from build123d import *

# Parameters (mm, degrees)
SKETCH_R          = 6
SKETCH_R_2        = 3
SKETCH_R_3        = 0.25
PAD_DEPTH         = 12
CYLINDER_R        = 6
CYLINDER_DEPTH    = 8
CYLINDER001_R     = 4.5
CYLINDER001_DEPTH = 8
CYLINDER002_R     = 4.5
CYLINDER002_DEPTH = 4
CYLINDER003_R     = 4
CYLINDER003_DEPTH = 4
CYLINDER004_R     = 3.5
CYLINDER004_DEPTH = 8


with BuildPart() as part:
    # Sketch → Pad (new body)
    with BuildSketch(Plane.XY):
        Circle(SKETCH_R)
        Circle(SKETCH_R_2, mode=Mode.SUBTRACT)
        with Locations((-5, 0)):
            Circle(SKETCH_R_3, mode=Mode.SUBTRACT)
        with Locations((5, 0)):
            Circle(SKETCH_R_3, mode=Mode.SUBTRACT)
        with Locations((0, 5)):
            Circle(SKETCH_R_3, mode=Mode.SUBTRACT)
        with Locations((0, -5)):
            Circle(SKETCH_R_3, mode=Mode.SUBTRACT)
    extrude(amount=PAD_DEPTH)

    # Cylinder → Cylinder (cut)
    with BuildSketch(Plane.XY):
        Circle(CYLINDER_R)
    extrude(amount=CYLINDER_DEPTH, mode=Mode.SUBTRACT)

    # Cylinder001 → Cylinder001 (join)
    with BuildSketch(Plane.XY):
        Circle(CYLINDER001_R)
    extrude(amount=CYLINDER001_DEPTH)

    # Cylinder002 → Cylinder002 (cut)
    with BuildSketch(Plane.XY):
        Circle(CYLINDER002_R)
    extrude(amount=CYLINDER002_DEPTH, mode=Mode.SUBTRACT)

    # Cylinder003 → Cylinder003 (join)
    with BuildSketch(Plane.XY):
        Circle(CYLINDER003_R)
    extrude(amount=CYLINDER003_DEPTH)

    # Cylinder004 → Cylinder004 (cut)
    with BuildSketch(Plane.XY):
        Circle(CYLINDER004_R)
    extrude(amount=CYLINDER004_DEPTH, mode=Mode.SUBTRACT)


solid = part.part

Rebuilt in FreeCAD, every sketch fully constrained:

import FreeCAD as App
import Part
import Sketcher
Q = App.Units.Quantity

doc = App.newDocument("Part")
params = doc.addObject("Spreadsheet::Sheet", "Params")
for row, (alias, value) in enumerate([
    ("sketch1_diameter", "12 mm"),
    ("sketch1_diameter2", "6 mm"),
    ("sketch1_diameter3", "0.5 mm"),
    ("pad1_length", "12 mm"),
    ("sketch2_diameter", "12 mm"),
    ("pocket1_length", "8 mm"),
    ("sketch3_diameter", "9 mm"),
    ("pad2_length", "8 mm"),
    ("sketch4_diameter", "9 mm"),
    ("pocket2_length", "4 mm"),
    ("sketch5_diameter", "8 mm"),
    ("pad3_length", "4 mm"),
    ("sketch6_diameter", "7 mm"),
    ("pocket3_length", "8 mm"),
], start=1):
    params.set(f"A{row}", alias)
    params.set(f"B{row}", "=" + value)
    params.setAlias(f"B{row}", alias)

body = doc.addObject("PartDesign::Body", "Body")

sketch1 = body.newObject("Sketcher::SketchObject", "Sketch")
sketch1.AttachmentSupport = (doc.getObject("XY_Plane"), [""])
sketch1.MapMode = "FlatFace"
sketch1.addGeometry(Part.Circle(App.Vector(0, 0, 0), App.Vector(0, 0, 1), 6), False)
sketch1.addGeometry(Part.Circle(App.Vector(0, -5, 0), App.Vector(0, 0, 1), 0.25), False)
sketch1.addGeometry(Part.Circle(App.Vector(-5, 0, 0), App.Vector(0, 0, 1), 0.25), False)
sketch1.addGeometry(Part.Circle(App.Vector(0, 0, 0), App.Vector(0, 0, 1), 3), False)
sketch1.addGeometry(Part.Circle(App.Vector(5, 0, 0), App.Vector(0, 0, 1), 0.25), False)
sketch1.addGeometry(Part.Circle(App.Vector(0, 5, 0), App.Vector(0, 0, 1), 0.25), False)
sketch1.addConstraint(Sketcher.Constraint("Coincident", 0, 3, -1, 1))
sketch1.addConstraint(Sketcher.Constraint("Coincident", 3, 3, -1, 1))
sketch1.addConstraint(Sketcher.Constraint("Equal", 1, 2))
sketch1.addConstraint(Sketcher.Constraint("Equal", 2, 4))
sketch1.addConstraint(Sketcher.Constraint("Equal", 4, 5))
sketch1.addConstraint(Sketcher.Constraint("Symmetric", 2, 3, 4, 3, -1, 1))
sketch1.addConstraint(Sketcher.Constraint("Symmetric", 1, 3, 5, 3, -1, 1))
sketch1.addConstraint(Sketcher.Constraint("PointOnObject", 1, 3, -2))
sketch1.addConstraint(Sketcher.Constraint("PointOnObject", 2, 3, -1))
sketch1.addConstraint(Sketcher.Constraint("Diameter", 0, Q("12 mm")))
sketch1.addConstraint(Sketcher.Constraint("Diameter", 3, Q("6 mm")))
sketch1.addConstraint(Sketcher.Constraint("Diameter", 1, Q("0.5 mm")))
sketch1.addConstraint(Sketcher.Constraint("DistanceY", 1, 3, -1, 1, Q("5 mm")))
sketch1.addConstraint(Sketcher.Constraint("DistanceX", 2, 3, -1, 1, Q("5 mm")))
sketch1.setExpression("Constraints[9]", "Params.sketch1_diameter")
sketch1.setExpression("Constraints[10]", "Params.sketch1_diameter2")
sketch1.setExpression("Constraints[11]", "Params.sketch1_diameter3")
pad1 = body.newObject("PartDesign::Pad", "Pad")
pad1.Profile = sketch1
pad1.setExpression("Length", "Params.pad1_length")

sketch2 = body.newObject("Sketcher::SketchObject", "Sketch001")
sketch2.AttachmentSupport = (doc.getObject("XY_Plane"), [""])
sketch2.MapMode = "FlatFace"
sketch2.addGeometry(Part.Circle(App.Vector(0, 0, 0), App.Vector(0, 0, 1), 6), False)
sketch2.addConstraint(Sketcher.Constraint("Coincident", 0, 3, -1, 1))
sketch2.addConstraint(Sketcher.Constraint("Diameter", 0, Q("12 mm")))
sketch2.setExpression("Constraints[1]", "Params.sketch2_diameter")
pocket1 = body.newObject("PartDesign::Pocket", "Pocket")
pocket1.Profile = sketch2
pocket1.setExpression("Length", "Params.pocket1_length")
pocket1.Reversed = True

sketch3 = body.newObject("Sketcher::SketchObject", "Sketch002")
sketch3.AttachmentSupport = (doc.getObject("XY_Plane"), [""])
sketch3.MapMode = "FlatFace"
sketch3.addGeometry(Part.Circle(App.Vector(0, 0, 0), App.Vector(0, 0, 1), 4.5), False)
sketch3.addConstraint(Sketcher.Constraint("Coincident", 0, 3, -1, 1))
sketch3.addConstraint(Sketcher.Constraint("Diameter", 0, Q("9 mm")))
sketch3.setExpression("Constraints[1]", "Params.sketch3_diameter")
pad2 = body.newObject("PartDesign::Pad", "Pad001")
pad2.Profile = sketch3
pad2.setExpression("Length", "Params.pad2_length")

sketch4 = body.newObject("Sketcher::SketchObject", "Sketch003")
sketch4.AttachmentSupport = (doc.getObject("XY_Plane"), [""])
sketch4.MapMode = "FlatFace"
sketch4.addGeometry(Part.Circle(App.Vector(0, 0, 0), App.Vector(0, 0, 1), 4.5), False)
sketch4.addConstraint(Sketcher.Constraint("Coincident", 0, 3, -1, 1))
sketch4.addConstraint(Sketcher.Constraint("Diameter", 0, Q("9 mm")))
sketch4.setExpression("Constraints[1]", "Params.sketch4_diameter")
pocket2 = body.newObject("PartDesign::Pocket", "Pocket001")
pocket2.Profile = sketch4
pocket2.setExpression("Length", "Params.pocket2_length")
pocket2.Reversed = True

sketch5 = body.newObject("Sketcher::SketchObject", "Sketch004")
sketch5.AttachmentSupport = (doc.getObject("XY_Plane"), [""])
sketch5.MapMode = "FlatFace"
sketch5.addGeometry(Part.Circle(App.Vector(0, 0, 0), App.Vector(0, 0, 1), 4), False)
sketch5.addConstraint(Sketcher.Constraint("Coincident", 0, 3, -1, 1))
sketch5.addConstraint(Sketcher.Constraint("Diameter", 0, Q("8 mm")))
sketch5.setExpression("Constraints[1]", "Params.sketch5_diameter")
pad3 = body.newObject("PartDesign::Pad", "Pad002")
pad3.Profile = sketch5
pad3.setExpression("Length", "Params.pad3_length")

sketch6 = body.newObject("Sketcher::SketchObject", "Sketch005")
sketch6.AttachmentSupport = (doc.getObject("XY_Plane"), [""])
sketch6.MapMode = "FlatFace"
sketch6.addGeometry(Part.Circle(App.Vector(0, 0, 0), App.Vector(0, 0, 1), 3.5), False)
sketch6.addConstraint(Sketcher.Constraint("Coincident", 0, 3, -1, 1))
sketch6.addConstraint(Sketcher.Constraint("Diameter", 0, Q("7 mm")))
sketch6.setExpression("Constraints[1]", "Params.sketch6_diameter")
pocket3 = body.newObject("PartDesign::Pocket", "Pocket002")
pocket3.Profile = sketch6
pocket3.setExpression("Length", "Params.pocket3_length")
pocket3.Reversed = True

doc.recompute()
